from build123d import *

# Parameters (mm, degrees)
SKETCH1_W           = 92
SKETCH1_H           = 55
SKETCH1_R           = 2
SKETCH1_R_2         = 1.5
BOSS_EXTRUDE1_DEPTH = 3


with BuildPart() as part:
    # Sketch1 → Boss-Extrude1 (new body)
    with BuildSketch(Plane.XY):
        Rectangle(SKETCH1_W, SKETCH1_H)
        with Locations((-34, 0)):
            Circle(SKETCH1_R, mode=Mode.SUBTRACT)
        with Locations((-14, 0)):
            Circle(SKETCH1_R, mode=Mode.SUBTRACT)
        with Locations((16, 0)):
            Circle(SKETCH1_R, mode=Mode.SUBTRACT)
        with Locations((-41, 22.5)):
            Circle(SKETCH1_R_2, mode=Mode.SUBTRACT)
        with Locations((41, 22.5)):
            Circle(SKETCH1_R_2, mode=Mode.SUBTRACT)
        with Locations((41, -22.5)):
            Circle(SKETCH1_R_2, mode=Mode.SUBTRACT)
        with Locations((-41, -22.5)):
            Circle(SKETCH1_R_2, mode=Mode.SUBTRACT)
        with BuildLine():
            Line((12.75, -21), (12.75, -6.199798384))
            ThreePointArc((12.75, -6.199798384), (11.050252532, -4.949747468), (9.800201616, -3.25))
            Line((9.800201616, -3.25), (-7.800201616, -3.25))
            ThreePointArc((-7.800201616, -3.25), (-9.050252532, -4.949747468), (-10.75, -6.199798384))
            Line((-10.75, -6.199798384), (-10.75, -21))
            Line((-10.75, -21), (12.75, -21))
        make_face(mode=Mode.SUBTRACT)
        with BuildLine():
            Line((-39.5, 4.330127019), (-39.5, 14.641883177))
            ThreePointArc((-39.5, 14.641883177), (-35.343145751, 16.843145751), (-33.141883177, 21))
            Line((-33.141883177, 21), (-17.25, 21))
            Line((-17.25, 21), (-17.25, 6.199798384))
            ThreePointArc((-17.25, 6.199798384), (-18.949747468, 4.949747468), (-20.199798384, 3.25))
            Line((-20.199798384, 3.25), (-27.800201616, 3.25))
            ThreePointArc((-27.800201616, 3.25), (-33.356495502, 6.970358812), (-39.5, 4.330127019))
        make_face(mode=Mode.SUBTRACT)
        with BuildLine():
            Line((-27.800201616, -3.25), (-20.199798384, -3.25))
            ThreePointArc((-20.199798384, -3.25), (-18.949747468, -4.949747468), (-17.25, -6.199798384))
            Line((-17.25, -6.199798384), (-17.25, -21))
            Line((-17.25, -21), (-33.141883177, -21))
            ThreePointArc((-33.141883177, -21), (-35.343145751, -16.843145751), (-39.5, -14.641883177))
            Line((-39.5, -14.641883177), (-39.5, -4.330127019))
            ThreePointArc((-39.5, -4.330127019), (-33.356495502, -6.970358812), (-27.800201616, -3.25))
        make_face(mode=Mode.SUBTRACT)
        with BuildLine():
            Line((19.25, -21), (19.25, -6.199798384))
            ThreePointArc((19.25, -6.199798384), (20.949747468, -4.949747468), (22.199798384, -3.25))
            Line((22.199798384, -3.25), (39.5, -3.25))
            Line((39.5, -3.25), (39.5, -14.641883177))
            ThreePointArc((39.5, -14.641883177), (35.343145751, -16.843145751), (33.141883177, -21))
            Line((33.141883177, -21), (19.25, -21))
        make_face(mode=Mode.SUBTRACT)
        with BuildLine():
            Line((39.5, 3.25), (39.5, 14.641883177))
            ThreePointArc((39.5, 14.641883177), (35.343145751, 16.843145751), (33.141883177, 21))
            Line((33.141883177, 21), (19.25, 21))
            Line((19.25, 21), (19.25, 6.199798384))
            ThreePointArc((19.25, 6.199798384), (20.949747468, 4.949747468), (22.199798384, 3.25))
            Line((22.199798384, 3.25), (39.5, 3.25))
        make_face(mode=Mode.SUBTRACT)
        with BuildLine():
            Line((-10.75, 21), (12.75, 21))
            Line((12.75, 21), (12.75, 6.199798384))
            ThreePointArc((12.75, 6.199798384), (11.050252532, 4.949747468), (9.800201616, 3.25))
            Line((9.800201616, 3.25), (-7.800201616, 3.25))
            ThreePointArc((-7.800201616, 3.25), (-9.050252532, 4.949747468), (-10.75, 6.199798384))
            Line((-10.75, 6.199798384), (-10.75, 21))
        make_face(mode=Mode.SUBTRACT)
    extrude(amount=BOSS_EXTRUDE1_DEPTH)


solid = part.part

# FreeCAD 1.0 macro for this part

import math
import FreeCAD as App
import Part
import Sketcher
from FreeCAD import Vector
Q = App.Units.Quantity

doc = App.newDocument("Part")
body = doc.addObject("PartDesign::Body", "Body")

# Sketch on XY plane
sketch1 = doc.addObject("Sketcher::SketchObject", "Sketch")
body.addObject(sketch1)
sketch1.AttachmentSupport = (doc.XY_Plane, [""])
sketch1.MapMode = "FlatFace"
sketch1.addGeometry([
    Part.LineSegment(Vector(-46, 27.5, 0), Vector(-46, -27.5, 0)),  # 0
    Part.LineSegment(Vector(-46, -27.5, 0), Vector(46, -27.5, 0)),  # 1
    Part.LineSegment(Vector(46, -27.5, 0), Vector(46, 27.5, 0)),  # 2
    Part.LineSegment(Vector(46, 27.5, 0), Vector(-46, 27.5, 0)),  # 3
    Part.Circle(Vector(-41, -22.5, 0), Vector(0, 0, 1), 1.5),  # 4
    Part.ArcOfCircle(Part.Circle(Vector(-34, 0, 0), Vector(0, 0, 1), 7), math.radians(-141.786789), math.radians(-27.664004)),  # 5
    Part.LineSegment(Vector(-27.800202, -3.25, 0), Vector(-20.199798, -3.25, 0)),  # 6
    Part.ArcOfCircle(Part.Circle(Vector(-14, 0, 0), Vector(0, 0, 1), 7), math.radians(-152.335995), math.radians(-117.664005)),  # 7
    Part.LineSegment(Vector(-17.25, -6.199798, 0), Vector(-17.25, -21, 0)),  # 8
    Part.LineSegment(Vector(-17.25, -21, 0), Vector(-33.141883, -21, 0)),  # 9
    Part.ArcOfCircle(Part.Circle(Vector(-41, -22.5, 0), Vector(0, 0, 1), 8), math.radians(10.806923), math.radians(79.193077)),  # 10
    Part.LineSegment(Vector(-39.5, -14.641883, 0), Vector(-39.5, -4.330127, 0)),  # 11
    Part.LineSegment(Vector(12.75, -6.199798, 0), Vector(12.75, -21, 0)),  # 12
    Part.LineSegment(Vector(12.75, -21, 0), Vector(-10.75, -21, 0)),  # 13
    Part.LineSegment(Vector(-10.75, -21, 0), Vector(-10.75, -6.199798, 0)),  # 14
    Part.ArcOfCircle(Part.Circle(Vector(-14, 0, 0), Vector(0, 0, 1), 7), math.radians(-62.335995), math.radians(-27.664005)),  # 15
    Part.LineSegment(Vector(-7.800202, -3.25, 0), Vector(9.800202, -3.25, 0)),  # 16
    Part.ArcOfCircle(Part.Circle(Vector(16, 0, 0), Vector(0, 0, 1), 7), math.radians(-152.335995), math.radians(-117.664005)),  # 17
    Part.Circle(Vector(41, -22.5, 0), Vector(0, 0, 1), 1.5),  # 18
    Part.LineSegment(Vector(33.141883, -21, 0), Vector(19.25, -21, 0)),  # 19
    Part.LineSegment(Vector(19.25, -21, 0), Vector(19.25, -6.199798, 0)),  # 20
    Part.ArcOfCircle(Part.Circle(Vector(16, 0, 0), Vector(0, 0, 1), 7), math.radians(-62.335995), math.radians(-27.664005)),  # 21
    Part.LineSegment(Vector(22.199798, -3.25, 0), Vector(39.5, -3.25, 0)),  # 22
    Part.LineSegment(Vector(39.5, -3.25, 0), Vector(39.5, -14.641883, 0)),  # 23
    Part.ArcOfCircle(Part.Circle(Vector(41, -22.5, 0), Vector(0, 0, 1), 8), math.radians(100.806923), math.radians(169.193077)),  # 24
    Part.Circle(Vector(-34, 0, 0), Vector(0, 0, 1), 2),  # 25
    Part.Circle(Vector(-14, 0, 0), Vector(0, 0, 1), 2),  # 26
    Part.ArcOfCircle(Part.Circle(Vector(-34, 0, 0), Vector(0, 0, 1), 7), math.radians(27.664004), math.radians(141.786789)),  # 27
    Part.LineSegment(Vector(-39.5, 4.330127, 0), Vector(-39.5, 14.641883, 0)),  # 28
    Part.ArcOfCircle(Part.Circle(Vector(-41, 22.5, 0), Vector(0, 0, 1), 8), math.radians(-79.193077), math.radians(-10.806923)),  # 29
    Part.LineSegment(Vector(-33.141883, 21, 0), Vector(-17.25, 21, 0)),  # 30
    Part.LineSegment(Vector(-17.25, 21, 0), Vector(-17.25, 6.199798, 0)),  # 31
    Part.ArcOfCircle(Part.Circle(Vector(-14, 0, 0), Vector(0, 0, 1), 7), math.radians(117.664005), math.radians(152.335995)),  # 32
    Part.LineSegment(Vector(-20.199798, 3.25, 0), Vector(-27.800202, 3.25, 0)),  # 33
    Part.Circle(Vector(-41, 22.5, 0), Vector(0, 0, 1), 1.5),  # 34
    Part.Circle(Vector(16, 0, 0), Vector(0, 0, 1), 2),  # 35
    Part.LineSegment(Vector(-10.75, 6.199798, 0), Vector(-10.75, 21, 0)),  # 36
    Part.LineSegment(Vector(-10.75, 21, 0), Vector(12.75, 21, 0)),  # 37
    Part.LineSegment(Vector(12.75, 21, 0), Vector(12.75, 6.199798, 0)),  # 38
    Part.ArcOfCircle(Part.Circle(Vector(16, 0, 0), Vector(0, 0, 1), 7), math.radians(117.664005), math.radians(152.335995)),  # 39
    Part.LineSegment(Vector(9.800202, 3.25, 0), Vector(-7.800202, 3.25, 0)),  # 40
    Part.ArcOfCircle(Part.Circle(Vector(-14, 0, 0), Vector(0, 0, 1), 7), math.radians(27.664005), math.radians(62.335995)),  # 41
    Part.LineSegment(Vector(39.5, 14.641883, 0), Vector(39.5, 3.25, 0)),  # 42
    Part.LineSegment(Vector(39.5, 3.25, 0), Vector(22.199798, 3.25, 0)),  # 43
    Part.ArcOfCircle(Part.Circle(Vector(16, 0, 0), Vector(0, 0, 1), 7), math.radians(27.664005), math.radians(62.335995)),  # 44
    Part.LineSegment(Vector(19.25, 6.199798, 0), Vector(19.25, 21, 0)),  # 45
    Part.LineSegment(Vector(19.25, 21, 0), Vector(33.141883, 21, 0)),  # 46
    Part.ArcOfCircle(Part.Circle(Vector(41, 22.5, 0), Vector(0, 0, 1), 8), math.radians(-169.193077), math.radians(-100.806923)),  # 47
    Part.Circle(Vector(41, 22.5, 0), Vector(0, 0, 1), 1.5),  # 48
], False)
sketch1.addConstraint([
    Sketcher.Constraint("Coincident", 0, 2, 1, 1),
    Sketcher.Constraint("Coincident", 1, 2, 2, 1),
    Sketcher.Constraint("Coincident", 2, 2, 3, 1),
    Sketcher.Constraint("Coincident", 3, 2, 0, 1),
    Sketcher.Constraint("Coincident", 5, 2, 6, 1),
    Sketcher.Constraint("Coincident", 6, 2, 7, 1),
    Sketcher.Constraint("Coincident", 7, 2, 8, 1),
    Sketcher.Constraint("Coincident", 8, 2, 9, 1),
    Sketcher.Constraint("Coincident", 9, 2, 10, 1),
    Sketcher.Constraint("Coincident", 10, 2, 11, 1),
    Sketcher.Constraint("Coincident", 11, 2, 5, 1),
    Sketcher.Constraint("Coincident", 12, 2, 13, 1),
    Sketcher.Constraint("Coincident", 13, 2, 14, 1),
    Sketcher.Constraint("Coincident", 14, 2, 15, 1),
    Sketcher.Constraint("Coincident", 15, 2, 16, 1),
    Sketcher.Constraint("Coincident", 16, 2, 17, 1),
    Sketcher.Constraint("Coincident", 17, 2, 12, 1),
    Sketcher.Constraint("Coincident", 19, 2, 20, 1),
    Sketcher.Constraint("Coincident", 20, 2, 21, 1),
    Sketcher.Constraint("Coincident", 21, 2, 22, 1),
    Sketcher.Constraint("Coincident", 22, 2, 23, 1),
    Sketcher.Constraint("Coincident", 23, 2, 24, 1),
    Sketcher.Constraint("Coincident", 24, 2, 19, 1),
    Sketcher.Constraint("Coincident", 27, 2, 28, 1),
    Sketcher.Constraint("Coincident", 28, 2, 29, 1),
    Sketcher.Constraint("Coincident", 29, 2, 30, 1),
    Sketcher.Constraint("Coincident", 30, 2, 31, 1),
    Sketcher.Constraint("Coincident", 31, 2, 32, 1),
    Sketcher.Constraint("Coincident", 32, 2, 33, 1),
    Sketcher.Constraint("Coincident", 33, 2, 27, 1),
    Sketcher.Constraint("Coincident", 36, 2, 37, 1),
    Sketcher.Constraint("Coincident", 37, 2, 38, 1),
    Sketcher.Constraint("Coincident", 38, 2, 39, 1),
    Sketcher.Constraint("Coincident", 39, 2, 40, 1),
    Sketcher.Constraint("Coincident", 40, 2, 41, 1),
    Sketcher.Constraint("Coincident", 41, 2, 36, 1),
    Sketcher.Constraint("Coincident", 42, 2, 43, 1),
    Sketcher.Constraint("Coincident", 43, 2, 44, 1),
    Sketcher.Constraint("Coincident", 44, 2, 45, 1),
    Sketcher.Constraint("Coincident", 45, 2, 46, 1),
    Sketcher.Constraint("Coincident", 46, 2, 47, 1),
    Sketcher.Constraint("Coincident", 47, 2, 42, 1),
    Sketcher.Constraint("Vertical", 0),
    Sketcher.Constraint("Horizontal", 1),
    Sketcher.Constraint("Vertical", 2),
    Sketcher.Constraint("Horizontal", 3),
    Sketcher.Constraint("Horizontal", 6),
    Sketcher.Constraint("Vertical", 8),
    Sketcher.Constraint("Horizontal", 9),
    Sketcher.Constraint("Vertical", 11),
    Sketcher.Constraint("Vertical", 12),
    Sketcher.Constraint("Horizontal", 13),
    Sketcher.Constraint("Vertical", 14),
    Sketcher.Constraint("Horizontal", 16),
    Sketcher.Constraint("Horizontal", 19),
    Sketcher.Constraint("Vertical", 20),
    Sketcher.Constraint("Horizontal", 22),
    Sketcher.Constraint("Vertical", 23),
    Sketcher.Constraint("Vertical", 28),
    Sketcher.Constraint("Horizontal", 30),
    Sketcher.Constraint("Vertical", 31),
    Sketcher.Constraint("Horizontal", 33),
    Sketcher.Constraint("Vertical", 36),
    Sketcher.Constraint("Horizontal", 37),
    Sketcher.Constraint("Vertical", 38),
    Sketcher.Constraint("Horizontal", 40),
    Sketcher.Constraint("Vertical", 42),
    Sketcher.Constraint("Horizontal", 43),
    Sketcher.Constraint("Vertical", 45),
    Sketcher.Constraint("Horizontal", 46),
    Sketcher.Constraint("Coincident", 10, 3, 4, 3),
    Sketcher.Constraint("Coincident", 15, 3, 7, 3),
    Sketcher.Constraint("Coincident", 21, 3, 17, 3),
    Sketcher.Constraint("Coincident", 24, 3, 18, 3),
    Sketcher.Constraint("Coincident", 25, 3, 5, 3),
    Sketcher.Constraint("Coincident", 26, 3, 7, 3),
    Sketcher.Constraint("Coincident", 27, 3, 5, 3),
    Sketcher.Constraint("Coincident", 32, 3, 7, 3),
    Sketcher.Constraint("Coincident", 34, 3, 29, 3),
    Sketcher.Constraint("Coincident", 35, 3, 17, 3),
    Sketcher.Constraint("Coincident", 39, 3, 17, 3),
    Sketcher.Constraint("Coincident", 41, 3, 7, 3),
    Sketcher.Constraint("Coincident", 44, 3, 17, 3),
    Sketcher.Constraint("Coincident", 48, 3, 47, 3),
    Sketcher.Constraint("Equal", 5, 7),
    Sketcher.Constraint("Equal", 7, 15),
    Sketcher.Constraint("Equal", 15, 17),
    Sketcher.Constraint("Equal", 4, 18),
    Sketcher.Constraint("Equal", 17, 21),
    Sketcher.Constraint("Equal", 10, 24),
    Sketcher.Constraint("Equal", 25, 26),
    Sketcher.Constraint("Equal", 21, 27),
    Sketcher.Constraint("Equal", 24, 29),
    Sketcher.Constraint("Equal", 27, 32),
    Sketcher.Constraint("Equal", 18, 34),
    Sketcher.Constraint("Equal", 26, 35),
    Sketcher.Constraint("Equal", 32, 39),
    Sketcher.Constraint("Equal", 39, 41),
    Sketcher.Constraint("Equal", 41, 44),
    Sketcher.Constraint("Equal", 29, 47),
    Sketcher.Constraint("Equal", 34, 48),
    Sketcher.Constraint("Symmetric", 18, 3, 29, 3, -1, 1),
    Sketcher.Constraint("Symmetric", 4, 3, 47, 3, -1, 1),
    Sketcher.Constraint("Symmetric", 0, 2, 2, 2, -1, 1),
    Sketcher.Constraint("Symmetric", 4, 3, 18, 3, -2),
    Sketcher.Constraint("Symmetric", 11, 2, 27, 2, -1),
    Sketcher.Constraint("Symmetric", 8, 2, 30, 2, -1),
    Sketcher.Constraint("Symmetric", 6, 2, 32, 2, -1),
    Sketcher.Constraint("Symmetric", 13, 2, 36, 2, -1),
    Sketcher.Constraint("Symmetric", 17, 2, 38, 2, -1),
    Sketcher.Constraint("Symmetric", 22, 2, 42, 2, -1),
    Sketcher.Constraint("Symmetric", 19, 2, 45, 2, -1),
    Sketcher.Constraint("Horizontal", 9, 2, 12, 2),
    Sketcher.Constraint("Horizontal", 7, 2, 14, 2),
    Sketcher.Constraint("Horizontal", 6, 2, 15, 2),
    Sketcher.Constraint("Horizontal", 14, 2, 17, 2),
    Sketcher.Constraint("Horizontal", 13, 2, 19, 2),
    Sketcher.Constraint("Horizontal", 17, 2, 20, 2),
    Sketcher.Constraint("Horizontal", 16, 2, 21, 2),
    Sketcher.Constraint("Horizontal", 10, 2, 23, 2),
    Sketcher.Constraint("Horizontal", 33, 2, 39, 2),
    Sketcher.Constraint("Diameter", 4, Q("3 mm")),
    Sketcher.Constraint("Diameter", 25, Q("4 mm")),
    Sketcher.Constraint("Radius", 5, Q("7 mm")),
    Sketcher.Constraint("Radius", 10, Q("8 mm")),
    Sketcher.Constraint("DistanceX", 1, 1, 1, 2, Q("92 mm")),
    Sketcher.Constraint("DistanceY", 0, 2, 0, 1, Q("55 mm")),
    Sketcher.Constraint("DistanceX", 13, 2, 13, 1, Q("23.5 mm")),
    Sketcher.Constraint("DistanceX", 4, 3, -1, 1, Q("41 mm")),
    Sketcher.Constraint("DistanceX", 5, 3, -1, 1, Q("34 mm")),
    Sketcher.Constraint("DistanceX", 7, 3, -1, 1, Q("14 mm")),
    Sketcher.Constraint("DistanceX", -1, 1, 17, 3, Q("16 mm")),
    Sketcher.Constraint("DistanceY", 8, 2, -1, 1, Q("21 mm")),
    Sketcher.Constraint("DistanceY", 4, 3, -1, 1, Q("22.5 mm")),
    Sketcher.Constraint("DistanceX", 10, 2, -1, 1, Q("39.5 mm")),
    Sketcher.Constraint("DistanceY", 5, 2, -1, 1, Q("3.25 mm")),
])
pad1 = doc.addObject("PartDesign::Pad", "Pad")
body.addObject(pad1)
pad1.Profile = sketch1
pad1.Length = 3

doc.recompute()
